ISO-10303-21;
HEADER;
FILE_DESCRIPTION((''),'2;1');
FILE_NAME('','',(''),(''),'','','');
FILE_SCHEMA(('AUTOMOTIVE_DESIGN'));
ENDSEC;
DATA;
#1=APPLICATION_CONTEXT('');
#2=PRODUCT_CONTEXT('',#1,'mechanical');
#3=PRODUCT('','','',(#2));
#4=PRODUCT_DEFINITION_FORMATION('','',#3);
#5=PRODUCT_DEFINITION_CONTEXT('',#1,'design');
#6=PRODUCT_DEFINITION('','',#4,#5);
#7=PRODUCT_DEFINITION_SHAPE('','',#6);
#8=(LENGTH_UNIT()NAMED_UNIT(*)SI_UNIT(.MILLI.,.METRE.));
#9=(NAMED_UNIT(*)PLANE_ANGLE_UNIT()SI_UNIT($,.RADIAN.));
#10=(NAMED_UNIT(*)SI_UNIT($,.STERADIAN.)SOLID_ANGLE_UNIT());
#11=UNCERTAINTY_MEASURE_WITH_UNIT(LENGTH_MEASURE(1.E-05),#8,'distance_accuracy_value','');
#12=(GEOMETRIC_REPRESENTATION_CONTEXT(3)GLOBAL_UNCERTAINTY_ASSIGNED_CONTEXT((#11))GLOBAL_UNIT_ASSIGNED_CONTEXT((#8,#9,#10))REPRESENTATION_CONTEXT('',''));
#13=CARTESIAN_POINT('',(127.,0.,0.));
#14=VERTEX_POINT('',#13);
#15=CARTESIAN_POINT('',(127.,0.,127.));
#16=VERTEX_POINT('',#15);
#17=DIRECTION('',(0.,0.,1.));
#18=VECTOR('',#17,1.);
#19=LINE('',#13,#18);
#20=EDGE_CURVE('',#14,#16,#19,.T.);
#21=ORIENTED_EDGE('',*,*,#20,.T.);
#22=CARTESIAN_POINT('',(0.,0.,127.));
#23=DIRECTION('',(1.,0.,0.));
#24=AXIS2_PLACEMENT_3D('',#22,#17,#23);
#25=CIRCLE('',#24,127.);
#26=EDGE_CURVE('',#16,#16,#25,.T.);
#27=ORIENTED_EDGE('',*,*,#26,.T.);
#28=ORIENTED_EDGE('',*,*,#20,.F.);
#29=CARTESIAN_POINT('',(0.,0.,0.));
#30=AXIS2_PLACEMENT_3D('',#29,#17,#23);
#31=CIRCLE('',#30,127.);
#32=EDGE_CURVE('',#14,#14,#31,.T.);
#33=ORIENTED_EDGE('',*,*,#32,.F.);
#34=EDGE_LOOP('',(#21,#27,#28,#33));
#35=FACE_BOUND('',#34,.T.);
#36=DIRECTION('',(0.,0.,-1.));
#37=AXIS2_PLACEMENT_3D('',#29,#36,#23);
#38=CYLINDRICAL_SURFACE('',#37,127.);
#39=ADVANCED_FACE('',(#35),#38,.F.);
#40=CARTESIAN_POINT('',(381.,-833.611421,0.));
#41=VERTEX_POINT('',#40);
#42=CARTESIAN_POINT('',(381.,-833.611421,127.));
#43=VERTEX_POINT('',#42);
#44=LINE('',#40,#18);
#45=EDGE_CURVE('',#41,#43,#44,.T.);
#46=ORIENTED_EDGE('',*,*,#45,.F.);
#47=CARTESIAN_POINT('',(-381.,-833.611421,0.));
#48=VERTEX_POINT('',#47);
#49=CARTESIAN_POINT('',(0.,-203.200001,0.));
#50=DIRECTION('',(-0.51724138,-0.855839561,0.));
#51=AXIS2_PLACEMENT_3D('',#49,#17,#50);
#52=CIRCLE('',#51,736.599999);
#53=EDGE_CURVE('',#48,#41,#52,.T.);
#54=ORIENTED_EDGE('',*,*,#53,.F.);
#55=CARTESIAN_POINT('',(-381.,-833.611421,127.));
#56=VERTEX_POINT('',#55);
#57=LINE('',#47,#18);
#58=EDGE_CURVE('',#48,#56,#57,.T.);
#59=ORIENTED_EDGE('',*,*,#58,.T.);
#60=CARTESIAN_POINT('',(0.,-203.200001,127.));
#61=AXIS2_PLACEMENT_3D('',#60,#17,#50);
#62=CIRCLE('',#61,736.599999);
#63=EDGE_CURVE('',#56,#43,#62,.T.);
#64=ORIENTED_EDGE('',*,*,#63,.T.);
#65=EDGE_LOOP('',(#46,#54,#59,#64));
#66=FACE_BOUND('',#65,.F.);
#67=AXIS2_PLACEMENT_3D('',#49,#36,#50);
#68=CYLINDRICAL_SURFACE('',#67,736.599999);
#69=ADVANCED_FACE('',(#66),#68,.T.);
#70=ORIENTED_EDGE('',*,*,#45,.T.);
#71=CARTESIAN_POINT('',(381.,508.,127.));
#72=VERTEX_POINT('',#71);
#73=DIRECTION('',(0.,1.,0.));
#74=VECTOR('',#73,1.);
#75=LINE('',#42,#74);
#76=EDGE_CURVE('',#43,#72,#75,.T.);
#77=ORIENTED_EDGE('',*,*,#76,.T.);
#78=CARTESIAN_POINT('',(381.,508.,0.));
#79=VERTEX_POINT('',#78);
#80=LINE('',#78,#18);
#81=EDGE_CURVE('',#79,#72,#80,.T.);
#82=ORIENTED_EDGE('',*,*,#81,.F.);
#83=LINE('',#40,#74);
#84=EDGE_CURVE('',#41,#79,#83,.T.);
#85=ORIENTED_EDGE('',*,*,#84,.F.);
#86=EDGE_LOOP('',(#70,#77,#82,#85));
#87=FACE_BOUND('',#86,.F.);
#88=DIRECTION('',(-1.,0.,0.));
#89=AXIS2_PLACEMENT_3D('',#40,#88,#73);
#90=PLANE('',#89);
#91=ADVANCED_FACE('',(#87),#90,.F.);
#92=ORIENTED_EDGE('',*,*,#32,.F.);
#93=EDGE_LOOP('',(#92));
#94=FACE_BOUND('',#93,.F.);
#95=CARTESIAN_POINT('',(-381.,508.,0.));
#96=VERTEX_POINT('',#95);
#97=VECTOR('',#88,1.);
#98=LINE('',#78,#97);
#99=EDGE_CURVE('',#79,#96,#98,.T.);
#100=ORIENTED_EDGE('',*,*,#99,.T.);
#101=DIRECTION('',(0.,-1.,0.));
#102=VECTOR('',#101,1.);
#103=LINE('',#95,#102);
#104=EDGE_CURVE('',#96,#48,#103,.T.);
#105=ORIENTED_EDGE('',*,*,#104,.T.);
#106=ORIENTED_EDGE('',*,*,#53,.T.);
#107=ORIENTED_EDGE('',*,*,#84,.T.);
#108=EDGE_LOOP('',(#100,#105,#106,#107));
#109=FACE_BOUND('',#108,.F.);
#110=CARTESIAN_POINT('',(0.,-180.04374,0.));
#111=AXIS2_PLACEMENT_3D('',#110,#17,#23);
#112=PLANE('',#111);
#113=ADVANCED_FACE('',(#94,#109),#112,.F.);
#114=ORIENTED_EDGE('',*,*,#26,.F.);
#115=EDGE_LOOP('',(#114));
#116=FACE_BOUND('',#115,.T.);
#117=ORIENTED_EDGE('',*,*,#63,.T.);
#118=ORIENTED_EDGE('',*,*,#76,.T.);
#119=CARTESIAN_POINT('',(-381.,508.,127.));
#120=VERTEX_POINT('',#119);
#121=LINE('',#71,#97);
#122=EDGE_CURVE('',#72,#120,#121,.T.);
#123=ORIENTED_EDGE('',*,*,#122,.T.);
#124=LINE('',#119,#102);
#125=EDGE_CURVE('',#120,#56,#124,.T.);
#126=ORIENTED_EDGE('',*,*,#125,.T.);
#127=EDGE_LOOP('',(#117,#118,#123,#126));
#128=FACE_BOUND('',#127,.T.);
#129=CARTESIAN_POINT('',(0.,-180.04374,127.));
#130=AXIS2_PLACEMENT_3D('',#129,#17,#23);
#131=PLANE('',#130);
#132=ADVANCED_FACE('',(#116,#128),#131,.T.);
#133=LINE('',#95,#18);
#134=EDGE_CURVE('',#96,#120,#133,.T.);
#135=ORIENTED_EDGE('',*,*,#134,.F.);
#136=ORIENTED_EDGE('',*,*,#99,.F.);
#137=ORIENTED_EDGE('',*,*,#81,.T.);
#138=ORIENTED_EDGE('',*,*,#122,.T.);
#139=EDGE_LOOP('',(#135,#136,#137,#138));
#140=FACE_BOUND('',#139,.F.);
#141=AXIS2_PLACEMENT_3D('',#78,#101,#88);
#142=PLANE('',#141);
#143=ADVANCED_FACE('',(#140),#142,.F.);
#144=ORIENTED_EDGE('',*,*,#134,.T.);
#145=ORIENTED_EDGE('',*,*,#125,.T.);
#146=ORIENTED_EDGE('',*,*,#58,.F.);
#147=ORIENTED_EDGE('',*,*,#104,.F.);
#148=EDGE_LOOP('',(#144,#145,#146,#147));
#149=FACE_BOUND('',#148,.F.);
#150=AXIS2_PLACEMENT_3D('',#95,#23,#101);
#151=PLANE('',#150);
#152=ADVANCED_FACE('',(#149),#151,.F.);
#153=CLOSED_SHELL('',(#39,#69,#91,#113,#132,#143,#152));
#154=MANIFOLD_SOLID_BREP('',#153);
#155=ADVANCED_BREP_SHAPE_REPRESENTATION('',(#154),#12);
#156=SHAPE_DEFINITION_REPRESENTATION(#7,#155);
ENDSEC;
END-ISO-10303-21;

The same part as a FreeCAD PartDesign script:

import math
import FreeCAD as App
import Part
import Sketcher
from FreeCAD import Vector
Q = App.Units.Quantity

doc = App.newDocument("Part")
body = doc.addObject("PartDesign::Body", "Body")

# Sketch on XY plane
sketch1 = body.newObject("Sketcher::SketchObject", "Sketch")
sketch1.AttachmentSupport = (doc.getObject("XY_Plane"), [""])
sketch1.MapMode = "FlatFace"
sketch1.addGeometry([
    Part.LineSegment(Vector(381, 508, 0), Vector(-381, 508, 0)),  # 0
    Part.LineSegment(Vector(-381, 508, 0), Vector(-381, -833.611421, 0)),  # 1
    Part.ArcOfCircle(Part.Circle(Vector(0, -203.200001, 0), Vector(0, 0, 1), 736.599999), math.radians(-121.14739), math.radians(-58.85261)),  # 2
    Part.LineSegment(Vector(381, -833.611421, 0), Vector(381, 508, 0)),  # 3
    Part.Circle(Vector(0, 0, 0), Vector(0, 0, 1), 127),  # 4
], False)
sketch1.addConstraint([
    Sketcher.Constraint("Coincident", 0, 2, 1, 1),
    Sketcher.Constraint("Coincident", 1, 2, 2, 1),
    Sketcher.Constraint("Coincident", 2, 2, 3, 1),
    Sketcher.Constraint("Coincident", 3, 2, 0, 1),
    Sketcher.Constraint("Horizontal", 0),
    Sketcher.Constraint("Vertical", 1),
    Sketcher.Constraint("Vertical", 3),
    Sketcher.Constraint("Coincident", 4, 3, -1, 1),
    Sketcher.Constraint("PointOnObject", 2, 3, -2),
    Sketcher.Constraint("Equal", 1, 3),
    Sketcher.Constraint("Diameter", 4, Q("10 in")),
    Sketcher.Constraint("Radius", 2, Q("28.9999999 in")),
    Sketcher.Constraint("DistanceX", 0, 2, 0, 1, Q("30 in")),
    Sketcher.Constraint("DistanceY", 2, 3, -1, 1, Q("8.0000001 in")),
    Sketcher.Constraint("DistanceY", -1, 1, 0, 2, Q("20 in")),
])
pad1 = body.newObject("PartDesign::Pad", "Pad")
pad1.Profile = sketch1
pad1.Length = Q("5 in")

doc.recompute()
